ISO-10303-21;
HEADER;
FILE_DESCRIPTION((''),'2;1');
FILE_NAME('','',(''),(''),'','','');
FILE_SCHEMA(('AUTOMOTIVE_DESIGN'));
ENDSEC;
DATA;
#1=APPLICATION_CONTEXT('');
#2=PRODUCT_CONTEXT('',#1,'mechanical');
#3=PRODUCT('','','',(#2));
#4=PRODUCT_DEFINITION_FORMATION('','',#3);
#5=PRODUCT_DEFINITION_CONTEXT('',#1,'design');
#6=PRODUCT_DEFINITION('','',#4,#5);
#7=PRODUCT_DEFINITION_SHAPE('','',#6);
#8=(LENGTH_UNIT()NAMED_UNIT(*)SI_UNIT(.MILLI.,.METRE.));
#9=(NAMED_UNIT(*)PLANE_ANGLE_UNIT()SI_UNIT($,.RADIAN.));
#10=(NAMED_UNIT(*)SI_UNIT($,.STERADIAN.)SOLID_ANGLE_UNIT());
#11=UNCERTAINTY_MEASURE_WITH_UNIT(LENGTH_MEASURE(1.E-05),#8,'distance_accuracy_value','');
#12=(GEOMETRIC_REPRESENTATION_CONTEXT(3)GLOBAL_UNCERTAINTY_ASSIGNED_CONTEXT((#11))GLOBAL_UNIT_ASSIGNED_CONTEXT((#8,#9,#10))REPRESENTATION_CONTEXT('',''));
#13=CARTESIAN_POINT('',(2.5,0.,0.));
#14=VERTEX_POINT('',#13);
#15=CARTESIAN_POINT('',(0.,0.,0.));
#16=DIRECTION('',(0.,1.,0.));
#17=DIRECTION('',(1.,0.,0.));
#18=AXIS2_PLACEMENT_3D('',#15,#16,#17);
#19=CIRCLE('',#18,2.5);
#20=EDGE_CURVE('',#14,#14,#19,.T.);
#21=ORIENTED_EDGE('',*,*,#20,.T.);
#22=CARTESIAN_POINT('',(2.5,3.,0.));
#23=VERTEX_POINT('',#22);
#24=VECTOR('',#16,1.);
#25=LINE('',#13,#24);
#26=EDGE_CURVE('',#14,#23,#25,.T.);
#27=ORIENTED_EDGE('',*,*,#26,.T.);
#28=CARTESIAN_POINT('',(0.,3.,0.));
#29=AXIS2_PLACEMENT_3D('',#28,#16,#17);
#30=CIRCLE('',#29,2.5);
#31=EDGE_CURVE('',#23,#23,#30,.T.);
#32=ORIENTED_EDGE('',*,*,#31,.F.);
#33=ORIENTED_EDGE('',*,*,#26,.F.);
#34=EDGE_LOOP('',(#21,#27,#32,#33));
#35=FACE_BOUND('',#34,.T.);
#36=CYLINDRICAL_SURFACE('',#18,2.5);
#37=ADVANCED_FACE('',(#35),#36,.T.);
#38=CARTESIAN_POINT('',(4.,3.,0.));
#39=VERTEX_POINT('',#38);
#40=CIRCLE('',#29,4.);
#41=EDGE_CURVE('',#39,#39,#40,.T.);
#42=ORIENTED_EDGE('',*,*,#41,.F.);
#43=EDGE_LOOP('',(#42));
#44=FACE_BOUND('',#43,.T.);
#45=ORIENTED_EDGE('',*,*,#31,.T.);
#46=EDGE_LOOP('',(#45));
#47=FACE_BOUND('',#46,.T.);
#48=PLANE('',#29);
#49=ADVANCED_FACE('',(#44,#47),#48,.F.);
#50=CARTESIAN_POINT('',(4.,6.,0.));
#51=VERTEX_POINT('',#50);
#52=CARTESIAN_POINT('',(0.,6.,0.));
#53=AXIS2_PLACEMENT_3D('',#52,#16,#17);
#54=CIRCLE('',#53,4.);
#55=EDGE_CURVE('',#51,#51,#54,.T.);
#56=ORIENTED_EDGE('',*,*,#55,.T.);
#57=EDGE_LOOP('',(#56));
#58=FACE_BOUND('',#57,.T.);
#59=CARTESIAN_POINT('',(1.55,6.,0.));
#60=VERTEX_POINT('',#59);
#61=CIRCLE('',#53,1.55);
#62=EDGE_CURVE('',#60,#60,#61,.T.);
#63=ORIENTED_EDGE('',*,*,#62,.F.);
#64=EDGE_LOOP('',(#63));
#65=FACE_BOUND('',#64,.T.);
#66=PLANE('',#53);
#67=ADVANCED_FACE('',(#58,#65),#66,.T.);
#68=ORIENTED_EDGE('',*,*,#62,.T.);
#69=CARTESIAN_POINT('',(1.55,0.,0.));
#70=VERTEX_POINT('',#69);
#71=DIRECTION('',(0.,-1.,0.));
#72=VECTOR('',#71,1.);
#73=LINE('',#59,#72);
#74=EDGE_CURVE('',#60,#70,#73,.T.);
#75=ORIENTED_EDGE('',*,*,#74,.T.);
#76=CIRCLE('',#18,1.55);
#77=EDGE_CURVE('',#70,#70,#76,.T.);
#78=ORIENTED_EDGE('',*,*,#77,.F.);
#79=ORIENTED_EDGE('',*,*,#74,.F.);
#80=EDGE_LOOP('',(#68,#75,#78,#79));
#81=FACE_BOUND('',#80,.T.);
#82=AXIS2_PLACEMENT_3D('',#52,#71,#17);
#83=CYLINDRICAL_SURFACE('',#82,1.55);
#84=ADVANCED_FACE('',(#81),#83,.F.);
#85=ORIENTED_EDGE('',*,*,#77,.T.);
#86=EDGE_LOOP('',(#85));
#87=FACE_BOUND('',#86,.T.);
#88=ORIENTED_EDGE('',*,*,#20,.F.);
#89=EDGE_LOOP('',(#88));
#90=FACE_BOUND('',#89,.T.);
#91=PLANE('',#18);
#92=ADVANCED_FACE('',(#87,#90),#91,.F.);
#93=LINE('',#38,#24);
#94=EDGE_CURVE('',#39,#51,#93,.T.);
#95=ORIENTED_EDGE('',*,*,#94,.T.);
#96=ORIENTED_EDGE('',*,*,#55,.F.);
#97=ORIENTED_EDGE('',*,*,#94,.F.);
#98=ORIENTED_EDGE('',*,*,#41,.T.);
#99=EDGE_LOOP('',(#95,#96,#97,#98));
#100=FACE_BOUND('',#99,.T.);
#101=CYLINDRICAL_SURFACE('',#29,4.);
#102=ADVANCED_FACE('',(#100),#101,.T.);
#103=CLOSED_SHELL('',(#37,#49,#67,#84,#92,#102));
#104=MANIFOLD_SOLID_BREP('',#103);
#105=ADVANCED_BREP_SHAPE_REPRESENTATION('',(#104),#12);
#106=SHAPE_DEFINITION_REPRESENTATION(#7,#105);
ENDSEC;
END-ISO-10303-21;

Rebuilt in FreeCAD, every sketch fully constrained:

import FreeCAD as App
import Part
import Sketcher
from FreeCAD import Vector
Q = App.Units.Quantity


def add_polygon(sketch, points):
    """Adds a closed chain of lines whose ends are joined by coincident constraints."""
    first, n = sketch.GeometryCount, len(points)
    for a, b in zip(points, points[1:] + points[:1]):
        sketch.addGeometry(Part.LineSegment(App.Vector(*a, 0), App.Vector(*b, 0)), False)
    for i in range(n):
        sketch.addConstraint(Sketcher.Constraint("Coincident", first + i, 2, first + (i + 1) % n, 1))

doc = App.newDocument("Part")
body = doc.addObject("PartDesign::Body", "Body")

# Sketch on XY plane
sketch1 = body.newObject("Sketcher::SketchObject", "Sketch")
sketch1.AttachmentSupport = (doc.getObject("XY_Plane"), [""])
sketch1.MapMode = "FlatFace"
add_polygon(sketch1, [(1.55, 0), (2.5, 0), (2.5, 3), (4, 3), (4, 6), (1.55, 6)])  # lines 0-5
sketch1.addConstraint(Sketcher.Constraint("Horizontal", 0))
sketch1.addConstraint(Sketcher.Constraint("Vertical", 1))
sketch1.addConstraint(Sketcher.Constraint("Horizontal", 2))
sketch1.addConstraint(Sketcher.Constraint("Vertical", 3))
sketch1.addConstraint(Sketcher.Constraint("Horizontal", 4))
sketch1.addConstraint(Sketcher.Constraint("Vertical", 5))
sketch1.addConstraint(Sketcher.Constraint("PointOnObject", 0, 2, -1))
sketch1.addConstraint(Sketcher.Constraint("Equal", 1, 3))
sketch1.addConstraint(Sketcher.Constraint("DistanceY", 1, 1, 1, 2, Q("3 mm")))
sketch1.addConstraint(Sketcher.Constraint("DistanceX", 2, 1, 2, 2, Q("1.5 mm")))
sketch1.addConstraint(Sketcher.Constraint("DistanceX", -1, 1, 2, 2, Q("4 mm")))
sketch1.addConstraint(Sketcher.Constraint("DistanceX", 0, 1, 0, 2, Q("0.95 mm")))
revolution = body.newObject("PartDesign::Revolution", "Revolution")
revolution.Profile = sketch1
revolution.ReferenceAxis = (sketch1, ["V_Axis"])
revolution.Angle = 360

doc.recompute()
